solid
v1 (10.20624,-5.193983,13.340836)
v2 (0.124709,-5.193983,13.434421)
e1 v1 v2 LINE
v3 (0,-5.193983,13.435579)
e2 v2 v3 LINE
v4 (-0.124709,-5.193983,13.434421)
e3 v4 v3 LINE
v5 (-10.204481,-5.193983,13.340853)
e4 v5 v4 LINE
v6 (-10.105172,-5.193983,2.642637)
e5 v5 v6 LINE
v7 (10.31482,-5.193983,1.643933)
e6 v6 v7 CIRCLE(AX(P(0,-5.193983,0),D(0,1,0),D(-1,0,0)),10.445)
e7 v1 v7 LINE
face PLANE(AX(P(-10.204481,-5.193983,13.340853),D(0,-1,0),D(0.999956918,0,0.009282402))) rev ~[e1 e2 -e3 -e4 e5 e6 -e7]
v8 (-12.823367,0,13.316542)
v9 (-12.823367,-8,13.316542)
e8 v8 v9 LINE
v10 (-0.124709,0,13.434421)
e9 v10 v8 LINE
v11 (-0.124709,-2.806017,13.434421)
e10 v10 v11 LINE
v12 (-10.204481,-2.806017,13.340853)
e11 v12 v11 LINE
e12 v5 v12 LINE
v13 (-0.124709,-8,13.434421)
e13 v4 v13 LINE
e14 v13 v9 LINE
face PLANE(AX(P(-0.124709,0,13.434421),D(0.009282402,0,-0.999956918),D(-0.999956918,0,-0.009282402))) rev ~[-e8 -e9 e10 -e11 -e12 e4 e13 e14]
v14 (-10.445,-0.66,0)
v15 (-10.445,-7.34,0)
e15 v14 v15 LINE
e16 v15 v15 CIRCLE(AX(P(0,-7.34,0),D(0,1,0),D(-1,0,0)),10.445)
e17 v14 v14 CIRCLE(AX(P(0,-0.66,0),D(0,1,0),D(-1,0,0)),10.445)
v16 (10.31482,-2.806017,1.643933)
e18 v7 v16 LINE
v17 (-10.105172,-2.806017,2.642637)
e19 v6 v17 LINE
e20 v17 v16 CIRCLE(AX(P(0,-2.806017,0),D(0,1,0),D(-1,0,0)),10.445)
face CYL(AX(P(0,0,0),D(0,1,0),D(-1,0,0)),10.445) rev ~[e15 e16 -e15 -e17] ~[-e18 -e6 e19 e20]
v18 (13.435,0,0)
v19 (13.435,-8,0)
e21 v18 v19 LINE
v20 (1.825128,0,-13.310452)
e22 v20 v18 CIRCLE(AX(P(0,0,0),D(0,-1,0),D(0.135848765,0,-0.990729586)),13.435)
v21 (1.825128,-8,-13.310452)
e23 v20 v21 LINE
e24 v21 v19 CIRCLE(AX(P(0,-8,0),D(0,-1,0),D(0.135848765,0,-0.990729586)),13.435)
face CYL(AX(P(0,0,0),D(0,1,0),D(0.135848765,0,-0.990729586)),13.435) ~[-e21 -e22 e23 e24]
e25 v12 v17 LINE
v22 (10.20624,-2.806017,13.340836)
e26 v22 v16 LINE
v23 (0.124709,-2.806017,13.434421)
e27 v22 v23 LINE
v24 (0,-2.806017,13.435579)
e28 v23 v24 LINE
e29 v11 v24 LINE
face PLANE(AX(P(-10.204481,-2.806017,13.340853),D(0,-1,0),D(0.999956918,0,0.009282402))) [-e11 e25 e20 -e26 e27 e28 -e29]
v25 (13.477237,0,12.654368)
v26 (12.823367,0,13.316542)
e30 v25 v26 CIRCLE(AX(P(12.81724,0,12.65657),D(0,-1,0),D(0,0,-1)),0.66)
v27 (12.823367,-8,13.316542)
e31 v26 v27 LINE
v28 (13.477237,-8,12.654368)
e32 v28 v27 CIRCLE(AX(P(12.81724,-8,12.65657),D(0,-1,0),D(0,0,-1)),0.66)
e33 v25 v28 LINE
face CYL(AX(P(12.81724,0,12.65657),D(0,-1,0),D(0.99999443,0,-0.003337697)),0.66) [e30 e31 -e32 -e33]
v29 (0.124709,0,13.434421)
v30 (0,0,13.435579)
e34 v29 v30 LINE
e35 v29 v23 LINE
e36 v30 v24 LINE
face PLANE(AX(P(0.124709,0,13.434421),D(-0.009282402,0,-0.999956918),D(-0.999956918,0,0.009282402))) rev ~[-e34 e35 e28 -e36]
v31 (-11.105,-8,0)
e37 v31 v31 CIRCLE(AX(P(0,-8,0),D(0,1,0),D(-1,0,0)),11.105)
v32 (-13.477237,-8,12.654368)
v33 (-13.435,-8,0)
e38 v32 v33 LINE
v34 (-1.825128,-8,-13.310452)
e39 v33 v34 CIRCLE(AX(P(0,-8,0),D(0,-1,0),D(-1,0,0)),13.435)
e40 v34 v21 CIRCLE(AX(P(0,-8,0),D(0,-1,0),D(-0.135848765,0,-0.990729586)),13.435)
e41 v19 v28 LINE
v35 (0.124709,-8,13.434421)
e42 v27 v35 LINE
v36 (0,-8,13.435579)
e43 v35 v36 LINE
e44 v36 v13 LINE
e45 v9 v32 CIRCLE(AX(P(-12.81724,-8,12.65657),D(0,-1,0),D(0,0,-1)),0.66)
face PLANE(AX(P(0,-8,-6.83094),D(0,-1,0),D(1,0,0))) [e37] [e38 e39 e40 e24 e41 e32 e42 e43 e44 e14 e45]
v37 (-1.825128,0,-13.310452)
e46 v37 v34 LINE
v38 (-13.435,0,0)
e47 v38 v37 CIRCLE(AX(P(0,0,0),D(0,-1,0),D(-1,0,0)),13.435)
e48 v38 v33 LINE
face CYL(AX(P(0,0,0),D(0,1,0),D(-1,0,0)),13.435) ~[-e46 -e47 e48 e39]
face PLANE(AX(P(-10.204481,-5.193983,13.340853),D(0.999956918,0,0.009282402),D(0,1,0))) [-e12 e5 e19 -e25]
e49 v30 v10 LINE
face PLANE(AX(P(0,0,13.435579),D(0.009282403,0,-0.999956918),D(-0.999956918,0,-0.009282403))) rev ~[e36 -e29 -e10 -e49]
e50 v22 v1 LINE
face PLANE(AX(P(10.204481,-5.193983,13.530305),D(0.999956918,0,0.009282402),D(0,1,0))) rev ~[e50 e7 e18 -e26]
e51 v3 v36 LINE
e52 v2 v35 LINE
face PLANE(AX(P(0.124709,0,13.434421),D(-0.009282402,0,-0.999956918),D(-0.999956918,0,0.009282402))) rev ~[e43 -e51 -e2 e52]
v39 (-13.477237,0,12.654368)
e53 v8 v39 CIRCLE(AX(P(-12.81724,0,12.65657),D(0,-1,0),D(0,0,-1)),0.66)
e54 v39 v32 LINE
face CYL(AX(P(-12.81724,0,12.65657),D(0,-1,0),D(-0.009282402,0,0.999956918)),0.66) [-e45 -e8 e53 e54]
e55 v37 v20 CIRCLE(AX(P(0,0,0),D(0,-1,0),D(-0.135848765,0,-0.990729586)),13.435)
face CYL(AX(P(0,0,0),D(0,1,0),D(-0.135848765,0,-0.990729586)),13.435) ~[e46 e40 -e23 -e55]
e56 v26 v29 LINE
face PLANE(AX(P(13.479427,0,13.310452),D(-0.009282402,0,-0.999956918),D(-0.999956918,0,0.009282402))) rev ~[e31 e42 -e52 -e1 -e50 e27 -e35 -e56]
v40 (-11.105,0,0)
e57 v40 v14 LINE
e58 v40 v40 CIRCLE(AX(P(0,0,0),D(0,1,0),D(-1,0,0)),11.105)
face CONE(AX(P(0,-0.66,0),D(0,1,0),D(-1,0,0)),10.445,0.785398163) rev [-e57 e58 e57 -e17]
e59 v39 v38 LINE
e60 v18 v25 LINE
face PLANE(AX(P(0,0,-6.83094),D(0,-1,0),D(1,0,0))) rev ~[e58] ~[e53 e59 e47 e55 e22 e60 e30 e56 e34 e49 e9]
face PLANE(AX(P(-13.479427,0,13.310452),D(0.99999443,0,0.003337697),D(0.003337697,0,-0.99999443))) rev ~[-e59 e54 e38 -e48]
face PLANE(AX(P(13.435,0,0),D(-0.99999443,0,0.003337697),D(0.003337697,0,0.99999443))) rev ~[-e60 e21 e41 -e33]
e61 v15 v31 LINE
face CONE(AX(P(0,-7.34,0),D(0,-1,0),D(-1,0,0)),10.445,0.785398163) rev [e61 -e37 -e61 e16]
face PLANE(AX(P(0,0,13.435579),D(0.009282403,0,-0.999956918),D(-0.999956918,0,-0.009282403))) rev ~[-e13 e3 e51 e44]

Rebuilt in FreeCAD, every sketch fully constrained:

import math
import FreeCAD as App
import Part
import Sketcher
from FreeCAD import Vector
Q = App.Units.Quantity


def edges_at(feature, points):
    """Names of the edges that pass closest to the given points."""
    edges = feature.Shape.Edges
    near = lambda p: min(range(len(edges)), key=lambda i: edges[i].distToShape(Part.Vertex(*p))[0])
    return sorted({f"Edge{near(p) + 1}" for p in points})

doc = App.newDocument("Part")
params = doc.addObject("Spreadsheet::Sheet", "Params")
for row, (alias, value) in enumerate([
    ("sketch1_diameter", "20.89 mm"),
    ("pad1_length", "8 mm"),
    ("pocket1_length", "13.1 mm"),
    ("fillet_radius", "0.66 mm"),
    ("chamfer_size", "0.66 mm"),
], start=1):
    params.set(f"A{row}", alias)
    params.set(f"B{row}", "=" + value)
    params.setAlias(f"B{row}", alias)

body = doc.addObject("PartDesign::Body", "Body")

# Sketch on XZ plane
sketch1 = doc.addObject("Sketcher::SketchObject", "Sketch")
body.addObject(sketch1)
sketch1.AttachmentSupport = (doc.XZ_Plane, [""])
sketch1.MapMode = "FlatFace"
sketch1.addGeometry([
    Part.ArcOfCircle(Part.Circle(Vector(0, 0, 0), Vector(0, 0, 1), 13.435), math.radians(180), math.radians(262.192297)),  # 0
    Part.ArcOfCircle(Part.Circle(Vector(0, 0, 0), Vector(0, 0, 1), 13.435), math.radians(-97.807703), math.radians(-82.192297)),  # 1
    Part.ArcOfCircle(Part.Circle(Vector(0, 0, 0), Vector(0, 0, 1), 13.435), math.radians(-82.192297), math.radians(0)),  # 2
    Part.LineSegment(Vector(13.435, 0, 0), Vector(13.479427, 13.310452, 0)),  # 3
    Part.LineSegment(Vector(13.479427, 13.310452, 0), Vector(0.124709, 13.434421, 0)),  # 4
    Part.LineSegment(Vector(0.124709, 13.434421, 0), Vector(0, 13.435579, 0)),  # 5
    Part.LineSegment(Vector(0, 13.435579, 0), Vector(-0.124709, 13.434421, 0)),  # 6
    Part.LineSegment(Vector(-0.124709, 13.434421, 0), Vector(-13.479427, 13.310452, 0)),  # 7
    Part.LineSegment(Vector(-13.479427, 13.310452, 0), Vector(-13.435, 0, 0)),  # 8
    Part.Circle(Vector(0, 0, 0), Vector(0, 0, 1), 10.445),  # 9
], False)
sketch1.addConstraint([
    Sketcher.Constraint("Tangent", 0, 2, 1, 1),
    Sketcher.Constraint("Tangent", 1, 2, 2, 1),
    Sketcher.Constraint("Coincident", 2, 2, 3, 1),
    Sketcher.Constraint("Coincident", 3, 2, 4, 1),
    Sketcher.Constraint("Coincident", 4, 2, 5, 1),
    Sketcher.Constraint("Coincident", 5, 2, 6, 1),
    Sketcher.Constraint("Coincident", 6, 2, 7, 1),
    Sketcher.Constraint("Coincident", 7, 2, 8, 1),
    Sketcher.Constraint("Coincident", 8, 2, 0, 1),
    Sketcher.Constraint("Coincident", 0, 3, -1, 1),
    Sketcher.Constraint("Coincident", 2, 3, -1, 1),
    Sketcher.Constraint("Coincident", 9, 3, -1, 1),
    Sketcher.Constraint("Symmetric", 4, 2, 6, 2, -2),
    Sketcher.Constraint("Symmetric", 3, 2, 7, 2, -2),
    Sketcher.Constraint("PointOnObject", 2, 2, -1),
    Sketcher.Constraint("PointOnObject", 5, 2, -2),
    Sketcher.Constraint("PointOnObject", 8, 2, -1),
    Sketcher.Constraint("Parallel", 4, 5),
    Sketcher.Constraint("Horizontal", 0, 2, 1, 2),
    Sketcher.Constraint("Diameter", 9, Q("20.89 mm")),
    Sketcher.Constraint("Radius", 0, Q("13.435 mm")),
    Sketcher.Constraint("DistanceX", 0, 2, -1, 1, Q("1.825128 mm")),
    Sketcher.Constraint("DistanceY", -1, 1, 3, 2, Q("13.310452 mm")),
    Sketcher.Constraint("DistanceX", -1, 1, 4, 2, Q("0.124709 mm")),
    Sketcher.Constraint("DistanceY", -1, 1, 4, 2, Q("13.434421 mm")),
    Sketcher.Constraint("Distance", 4, Q("13.355293 mm")),
])
sketch1.setExpression("Constraints[19]", "Params.sketch1_diameter")
pad1 = doc.addObject("PartDesign::Pad", "Pad")
body.addObject(pad1)
pad1.Profile = sketch1
pad1.setExpression("Length", "Params.pad1_length")

# Sketch on an angled plane
sketch2 = doc.addObject("Sketcher::SketchObject", "Sketch001")
body.addObject(sketch2)
sketch2.Placement = App.Placement(Vector(-0.124709, 0, 13.434421), App.Rotation(Vector(0.999956918, 0, 0.009282402), Vector(0, 1.000000001, 0), Vector(-0.009282402, 0, 0.999956918), "ZXY"))
sketch2.addGeometry([
    Part.LineSegment(Vector(-10.080206, -2.806017, 0), Vector(-10.080206, -5.193983, 0)),
    Part.LineSegment(Vector(-10.080206, -5.193983, 0), Vector(10.329635, -5.193983, 0)),
    Part.LineSegment(Vector(10.329635, -5.193983, 0), Vector(10.329635, -2.806017, 0)),
    Part.LineSegment(Vector(10.329635, -2.806017, 0), Vector(-10.080206, -2.806017, 0)),
], False)
sketch2.addConstraint([
    Sketcher.Constraint("Coincident", 0, 2, 1, 1),
    Sketcher.Constraint("Coincident", 1, 2, 2, 1),
    Sketcher.Constraint("Coincident", 2, 2, 3, 1),
    Sketcher.Constraint("Coincident", 3, 2, 0, 1),
    Sketcher.Constraint("Vertical", 0),
    Sketcher.Constraint("Horizontal", 1),
    Sketcher.Constraint("Vertical", 2),
    Sketcher.Constraint("Horizontal", 3),
    Sketcher.Constraint("DistanceX", 1, 1, 1, 2, Q("20.409841 mm")),
    Sketcher.Constraint("DistanceY", 0, 2, 0, 1, Q("2.387965 mm")),
    Sketcher.Constraint("DistanceX", 0, 2, -1, 1, Q("10.080206 mm")),
    Sketcher.Constraint("DistanceY", 0, 2, -1, 1, Q("5.193983 mm")),
])
pocket1 = doc.addObject("PartDesign::Pocket", "Pocket")
body.addObject(pocket1)
pocket1.Profile = sketch2
pocket1.setExpression("Length", "Params.pocket1_length")
doc.recompute()

fillet = doc.addObject("PartDesign::Fillet", "Fillet")
body.addObject(fillet)
fillet.Base = (pocket1, edges_at(pocket1, [(-13.479, -4, 13.31), (13.479, -4, 13.31)]))
fillet.setExpression("Radius", "Params.fillet_radius")
doc.recompute()

chamfer = doc.addObject("PartDesign::Chamfer", "Chamfer")
body.addObject(chamfer)
chamfer.Base = (fillet, edges_at(fillet, [(10.445, 0, 0), (10.445, -8, 0)]))
chamfer.setExpression("Size", "Params.chamfer_size")

doc.recompute()
